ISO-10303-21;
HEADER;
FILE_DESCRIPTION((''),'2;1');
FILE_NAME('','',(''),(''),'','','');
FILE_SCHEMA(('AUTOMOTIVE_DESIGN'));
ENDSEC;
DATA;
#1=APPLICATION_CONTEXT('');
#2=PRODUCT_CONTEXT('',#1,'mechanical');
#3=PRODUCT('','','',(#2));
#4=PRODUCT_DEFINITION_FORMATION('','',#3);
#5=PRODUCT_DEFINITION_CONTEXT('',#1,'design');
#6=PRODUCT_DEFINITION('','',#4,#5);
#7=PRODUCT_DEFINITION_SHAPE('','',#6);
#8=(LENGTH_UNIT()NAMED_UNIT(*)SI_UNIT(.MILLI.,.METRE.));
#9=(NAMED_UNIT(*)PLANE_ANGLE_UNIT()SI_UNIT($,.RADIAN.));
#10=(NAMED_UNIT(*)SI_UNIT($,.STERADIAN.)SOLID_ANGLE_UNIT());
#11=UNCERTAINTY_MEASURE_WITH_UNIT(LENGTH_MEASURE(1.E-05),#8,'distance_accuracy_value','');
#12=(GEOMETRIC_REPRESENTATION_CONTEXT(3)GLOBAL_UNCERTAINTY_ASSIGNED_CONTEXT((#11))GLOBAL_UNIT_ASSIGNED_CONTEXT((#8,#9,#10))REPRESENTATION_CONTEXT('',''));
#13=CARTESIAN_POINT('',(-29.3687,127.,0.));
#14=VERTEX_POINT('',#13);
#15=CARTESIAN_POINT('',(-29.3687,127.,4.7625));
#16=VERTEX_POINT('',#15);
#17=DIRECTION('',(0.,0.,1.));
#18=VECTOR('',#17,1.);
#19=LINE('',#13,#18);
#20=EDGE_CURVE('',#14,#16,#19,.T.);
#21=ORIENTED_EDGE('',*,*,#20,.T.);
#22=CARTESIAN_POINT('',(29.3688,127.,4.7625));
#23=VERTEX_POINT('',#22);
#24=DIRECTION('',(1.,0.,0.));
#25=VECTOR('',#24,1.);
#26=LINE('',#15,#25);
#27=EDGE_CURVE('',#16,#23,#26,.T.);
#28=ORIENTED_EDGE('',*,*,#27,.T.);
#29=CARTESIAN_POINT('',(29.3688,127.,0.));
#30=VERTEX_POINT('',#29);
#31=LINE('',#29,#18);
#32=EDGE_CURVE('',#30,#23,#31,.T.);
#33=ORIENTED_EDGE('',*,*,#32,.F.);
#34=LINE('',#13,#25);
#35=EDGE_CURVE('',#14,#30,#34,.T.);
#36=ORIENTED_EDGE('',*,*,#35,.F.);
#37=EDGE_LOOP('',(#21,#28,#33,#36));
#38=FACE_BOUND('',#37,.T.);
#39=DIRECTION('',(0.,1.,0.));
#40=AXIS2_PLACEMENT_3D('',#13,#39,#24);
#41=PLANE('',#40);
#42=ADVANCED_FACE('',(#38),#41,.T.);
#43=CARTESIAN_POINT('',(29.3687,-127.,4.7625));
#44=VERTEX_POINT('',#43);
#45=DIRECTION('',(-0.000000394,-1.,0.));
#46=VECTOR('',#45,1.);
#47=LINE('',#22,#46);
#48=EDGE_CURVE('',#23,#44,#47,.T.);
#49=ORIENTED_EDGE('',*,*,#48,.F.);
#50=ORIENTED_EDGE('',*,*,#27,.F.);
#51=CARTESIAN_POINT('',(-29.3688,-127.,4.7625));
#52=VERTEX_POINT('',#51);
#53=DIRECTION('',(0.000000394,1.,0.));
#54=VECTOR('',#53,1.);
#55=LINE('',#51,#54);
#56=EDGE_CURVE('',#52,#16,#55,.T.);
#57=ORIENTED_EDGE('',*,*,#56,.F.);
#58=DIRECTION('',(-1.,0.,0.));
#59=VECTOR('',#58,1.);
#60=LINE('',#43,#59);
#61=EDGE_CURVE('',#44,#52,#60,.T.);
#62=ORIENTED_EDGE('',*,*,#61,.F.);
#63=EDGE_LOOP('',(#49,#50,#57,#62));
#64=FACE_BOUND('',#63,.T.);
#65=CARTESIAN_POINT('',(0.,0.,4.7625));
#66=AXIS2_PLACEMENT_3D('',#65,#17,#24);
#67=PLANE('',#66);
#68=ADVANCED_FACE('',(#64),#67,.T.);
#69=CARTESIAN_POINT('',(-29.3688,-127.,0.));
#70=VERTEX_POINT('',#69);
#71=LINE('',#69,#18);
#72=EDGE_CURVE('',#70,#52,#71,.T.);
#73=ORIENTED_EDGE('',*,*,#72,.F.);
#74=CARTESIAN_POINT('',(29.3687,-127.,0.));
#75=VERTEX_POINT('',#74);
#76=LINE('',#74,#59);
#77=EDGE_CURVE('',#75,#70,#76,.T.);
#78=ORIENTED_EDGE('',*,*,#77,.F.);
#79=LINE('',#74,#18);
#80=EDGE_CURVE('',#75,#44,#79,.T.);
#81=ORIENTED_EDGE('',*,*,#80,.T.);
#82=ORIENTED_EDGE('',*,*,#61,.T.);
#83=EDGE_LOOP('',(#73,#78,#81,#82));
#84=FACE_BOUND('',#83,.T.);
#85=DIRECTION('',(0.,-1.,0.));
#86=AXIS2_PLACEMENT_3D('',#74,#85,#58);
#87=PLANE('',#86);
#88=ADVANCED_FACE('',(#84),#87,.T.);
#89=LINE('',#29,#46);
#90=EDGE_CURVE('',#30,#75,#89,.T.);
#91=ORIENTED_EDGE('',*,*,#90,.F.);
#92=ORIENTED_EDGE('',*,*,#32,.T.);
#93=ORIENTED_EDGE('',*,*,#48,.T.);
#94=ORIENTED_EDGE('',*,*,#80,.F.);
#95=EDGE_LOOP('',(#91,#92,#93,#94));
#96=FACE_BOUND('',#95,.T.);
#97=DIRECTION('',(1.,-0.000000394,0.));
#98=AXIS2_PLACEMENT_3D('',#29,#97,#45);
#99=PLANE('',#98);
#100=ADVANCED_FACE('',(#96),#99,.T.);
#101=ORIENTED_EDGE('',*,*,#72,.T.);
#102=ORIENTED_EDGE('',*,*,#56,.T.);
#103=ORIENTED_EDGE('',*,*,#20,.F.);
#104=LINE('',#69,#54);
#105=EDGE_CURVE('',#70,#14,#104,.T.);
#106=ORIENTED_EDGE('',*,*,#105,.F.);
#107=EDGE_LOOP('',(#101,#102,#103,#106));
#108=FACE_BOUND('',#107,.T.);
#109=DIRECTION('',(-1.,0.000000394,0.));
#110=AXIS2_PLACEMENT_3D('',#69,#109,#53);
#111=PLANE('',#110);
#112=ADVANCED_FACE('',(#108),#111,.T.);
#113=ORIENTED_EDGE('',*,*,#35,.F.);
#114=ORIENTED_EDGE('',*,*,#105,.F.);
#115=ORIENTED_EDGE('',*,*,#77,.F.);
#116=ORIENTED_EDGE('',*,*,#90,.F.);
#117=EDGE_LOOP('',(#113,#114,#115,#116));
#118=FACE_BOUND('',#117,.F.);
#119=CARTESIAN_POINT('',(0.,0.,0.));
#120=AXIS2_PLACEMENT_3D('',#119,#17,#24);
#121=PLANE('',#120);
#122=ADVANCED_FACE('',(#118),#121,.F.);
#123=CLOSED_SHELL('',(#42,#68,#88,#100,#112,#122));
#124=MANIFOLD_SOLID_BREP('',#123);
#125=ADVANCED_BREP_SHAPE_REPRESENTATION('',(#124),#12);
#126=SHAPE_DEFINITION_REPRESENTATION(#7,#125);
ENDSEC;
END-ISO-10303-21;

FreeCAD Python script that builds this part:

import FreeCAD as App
import Part
import Sketcher
Q = App.Units.Quantity


def add_polygon(sketch, points):
    """Adds a closed chain of lines whose ends are joined by coincident constraints."""
    first, n = sketch.GeometryCount, len(points)
    for a, b in zip(points, points[1:] + points[:1]):
        sketch.addGeometry(Part.LineSegment(App.Vector(*a, 0), App.Vector(*b, 0)), False)
    for i in range(n):
        sketch.addConstraint(Sketcher.Constraint("Coincident", first + i, 2, first + (i + 1) % n, 1))

doc = App.newDocument("Part")
body = doc.addObject("PartDesign::Body", "Body")

# Sketch on XY plane
sketch1 = doc.addObject("Sketcher::SketchObject", "Sketch")
body.addObject(sketch1)
sketch1.AttachmentSupport = (doc.XY_Plane, [""])
sketch1.MapMode = "FlatFace"
add_polygon(sketch1, [(29, 127), (-29, 127), (-29, -127), (29, -127)])  # lines 0-3
sketch1.addConstraint([
    Sketcher.Constraint("Horizontal", 0),
    Sketcher.Constraint("Vertical", 1),
    Sketcher.Constraint("Horizontal", 2),
    Sketcher.Constraint("Vertical", 3),
    Sketcher.Constraint("Symmetric", 0, 2, 2, 2, -1, 1),
    Sketcher.Constraint("DistanceY", 1, 2, 1, 1, Q("10 in")),
    Sketcher.Constraint("DistanceX", 0, 2, 0, 1, Q("2.3125 in")),
])
pad1 = doc.addObject("PartDesign::Pad", "Pad")
body.addObject(pad1)
pad1.Profile = sketch1
pad1.Length = Q("0.1875 in")

doc.recompute()
